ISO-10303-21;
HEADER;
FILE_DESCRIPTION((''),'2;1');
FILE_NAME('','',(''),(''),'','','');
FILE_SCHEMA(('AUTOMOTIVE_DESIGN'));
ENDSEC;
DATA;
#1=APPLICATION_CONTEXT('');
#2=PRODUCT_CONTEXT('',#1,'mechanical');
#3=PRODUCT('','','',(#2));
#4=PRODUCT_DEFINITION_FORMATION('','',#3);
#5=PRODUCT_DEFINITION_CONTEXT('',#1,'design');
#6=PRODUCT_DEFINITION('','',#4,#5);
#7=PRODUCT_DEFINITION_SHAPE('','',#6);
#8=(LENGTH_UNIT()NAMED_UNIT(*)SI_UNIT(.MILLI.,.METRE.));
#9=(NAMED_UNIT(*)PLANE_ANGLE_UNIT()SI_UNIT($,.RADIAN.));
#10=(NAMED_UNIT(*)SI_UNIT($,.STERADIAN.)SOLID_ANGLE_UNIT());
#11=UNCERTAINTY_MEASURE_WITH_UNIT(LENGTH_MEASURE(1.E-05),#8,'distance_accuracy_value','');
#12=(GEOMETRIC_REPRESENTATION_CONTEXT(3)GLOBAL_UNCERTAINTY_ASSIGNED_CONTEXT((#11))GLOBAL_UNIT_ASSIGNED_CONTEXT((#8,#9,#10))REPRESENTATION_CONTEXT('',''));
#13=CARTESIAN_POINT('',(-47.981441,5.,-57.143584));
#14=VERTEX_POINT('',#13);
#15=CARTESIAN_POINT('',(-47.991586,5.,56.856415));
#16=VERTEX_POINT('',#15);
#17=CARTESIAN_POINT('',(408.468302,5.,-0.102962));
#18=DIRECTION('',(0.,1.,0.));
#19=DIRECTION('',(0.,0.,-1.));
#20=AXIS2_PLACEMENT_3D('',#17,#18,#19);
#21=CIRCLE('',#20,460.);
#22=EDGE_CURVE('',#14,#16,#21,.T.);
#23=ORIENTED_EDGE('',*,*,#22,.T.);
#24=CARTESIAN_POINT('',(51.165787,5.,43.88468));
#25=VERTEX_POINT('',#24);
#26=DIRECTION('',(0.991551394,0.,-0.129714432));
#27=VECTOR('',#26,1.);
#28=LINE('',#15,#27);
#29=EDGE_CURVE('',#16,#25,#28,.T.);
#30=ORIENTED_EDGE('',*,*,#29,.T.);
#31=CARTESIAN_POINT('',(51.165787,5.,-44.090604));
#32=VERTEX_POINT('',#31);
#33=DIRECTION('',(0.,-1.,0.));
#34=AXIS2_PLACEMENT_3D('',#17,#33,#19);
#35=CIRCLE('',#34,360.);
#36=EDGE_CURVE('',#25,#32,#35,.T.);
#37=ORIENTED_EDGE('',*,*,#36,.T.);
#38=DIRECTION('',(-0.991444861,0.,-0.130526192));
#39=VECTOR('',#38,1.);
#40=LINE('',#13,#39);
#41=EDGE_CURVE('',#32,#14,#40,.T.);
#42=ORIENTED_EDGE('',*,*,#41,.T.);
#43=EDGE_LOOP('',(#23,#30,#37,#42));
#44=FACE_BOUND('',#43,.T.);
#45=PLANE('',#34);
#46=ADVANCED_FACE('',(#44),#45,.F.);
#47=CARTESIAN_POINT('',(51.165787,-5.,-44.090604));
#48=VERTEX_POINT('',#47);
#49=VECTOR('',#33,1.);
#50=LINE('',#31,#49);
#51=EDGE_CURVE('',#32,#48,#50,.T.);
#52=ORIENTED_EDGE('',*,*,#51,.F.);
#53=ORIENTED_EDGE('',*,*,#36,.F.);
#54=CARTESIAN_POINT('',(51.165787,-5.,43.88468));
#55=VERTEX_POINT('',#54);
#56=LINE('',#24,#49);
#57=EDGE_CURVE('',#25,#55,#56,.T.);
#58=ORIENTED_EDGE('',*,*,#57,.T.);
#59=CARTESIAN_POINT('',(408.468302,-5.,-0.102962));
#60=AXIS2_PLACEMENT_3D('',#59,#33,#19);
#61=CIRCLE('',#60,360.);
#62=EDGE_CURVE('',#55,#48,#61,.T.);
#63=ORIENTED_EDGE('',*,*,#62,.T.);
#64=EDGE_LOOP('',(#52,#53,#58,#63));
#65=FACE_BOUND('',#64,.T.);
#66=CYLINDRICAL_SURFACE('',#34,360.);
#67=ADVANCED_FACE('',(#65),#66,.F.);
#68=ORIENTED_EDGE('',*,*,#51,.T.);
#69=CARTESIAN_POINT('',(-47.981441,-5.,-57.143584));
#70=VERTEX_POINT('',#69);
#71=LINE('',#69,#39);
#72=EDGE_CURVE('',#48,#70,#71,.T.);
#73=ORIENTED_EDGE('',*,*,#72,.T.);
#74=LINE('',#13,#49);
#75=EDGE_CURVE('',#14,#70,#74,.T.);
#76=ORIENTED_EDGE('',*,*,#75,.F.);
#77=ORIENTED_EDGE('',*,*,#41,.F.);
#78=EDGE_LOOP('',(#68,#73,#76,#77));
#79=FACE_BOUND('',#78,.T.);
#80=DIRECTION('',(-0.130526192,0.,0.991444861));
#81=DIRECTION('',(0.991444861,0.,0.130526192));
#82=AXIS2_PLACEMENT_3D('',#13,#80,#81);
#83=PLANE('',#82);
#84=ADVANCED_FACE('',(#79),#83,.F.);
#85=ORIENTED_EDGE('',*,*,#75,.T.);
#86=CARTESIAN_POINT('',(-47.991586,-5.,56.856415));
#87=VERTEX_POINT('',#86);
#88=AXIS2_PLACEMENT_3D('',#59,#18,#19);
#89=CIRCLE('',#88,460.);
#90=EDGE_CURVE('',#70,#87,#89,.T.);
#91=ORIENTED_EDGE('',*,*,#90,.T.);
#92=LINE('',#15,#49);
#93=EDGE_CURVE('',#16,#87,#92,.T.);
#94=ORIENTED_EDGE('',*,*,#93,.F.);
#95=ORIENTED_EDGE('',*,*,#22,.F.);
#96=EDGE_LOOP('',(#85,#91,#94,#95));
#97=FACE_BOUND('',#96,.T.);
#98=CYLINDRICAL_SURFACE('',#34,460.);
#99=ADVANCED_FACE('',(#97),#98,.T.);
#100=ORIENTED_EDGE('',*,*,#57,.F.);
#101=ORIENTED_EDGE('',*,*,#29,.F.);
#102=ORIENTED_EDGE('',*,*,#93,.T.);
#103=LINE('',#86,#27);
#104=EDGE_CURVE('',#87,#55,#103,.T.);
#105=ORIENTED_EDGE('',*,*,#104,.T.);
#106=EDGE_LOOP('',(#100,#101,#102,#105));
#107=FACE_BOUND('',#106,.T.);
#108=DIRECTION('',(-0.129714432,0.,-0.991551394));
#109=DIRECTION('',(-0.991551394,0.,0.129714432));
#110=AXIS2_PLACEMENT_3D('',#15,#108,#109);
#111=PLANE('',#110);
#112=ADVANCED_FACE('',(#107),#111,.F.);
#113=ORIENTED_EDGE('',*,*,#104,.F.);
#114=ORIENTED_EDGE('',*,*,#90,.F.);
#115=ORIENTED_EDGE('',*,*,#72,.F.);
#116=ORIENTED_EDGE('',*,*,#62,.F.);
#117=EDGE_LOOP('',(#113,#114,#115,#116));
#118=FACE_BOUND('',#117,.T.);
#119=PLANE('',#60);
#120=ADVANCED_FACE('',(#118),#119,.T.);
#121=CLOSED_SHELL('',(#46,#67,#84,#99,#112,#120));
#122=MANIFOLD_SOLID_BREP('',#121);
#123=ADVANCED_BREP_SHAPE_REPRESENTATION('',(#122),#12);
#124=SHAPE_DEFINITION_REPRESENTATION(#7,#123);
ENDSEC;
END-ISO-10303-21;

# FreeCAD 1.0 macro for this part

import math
import FreeCAD as App
import Part
import Sketcher
from FreeCAD import Vector
Q = App.Units.Quantity

doc = App.newDocument("Part")
body = doc.addObject("PartDesign::Body", "Body")

sketch1 = doc.addObject("Sketcher::SketchObject", "Sketch")
body.addObject(sketch1)
sketch1.AttachmentSupport = (doc.XZ_Plane, [""])
sketch1.MapMode = "FlatFace"
sketch1.addGeometry([
    Part.LineSegment(Vector(51, -44, 0), Vector(-48, -57, 0)),
    Part.ArcOfCircle(Part.Circle(Vector(408, 0, 0), Vector(0, 0, 1), 460), math.radians(172.89), math.radians(187.12)),
    Part.LineSegment(Vector(-48, 57, 0), Vector(51, 44, 0)),
    Part.ArcOfCircle(Part.Circle(Vector(408, 0, 0), Vector(0, 0, 1), 360), math.radians(172.98), math.radians(187.02)),
], False)
sketch1.addConstraint([
    Sketcher.Constraint("Coincident", 0, 2, 1, 2),
    Sketcher.Constraint("Coincident", 1, 1, 2, 1),
    Sketcher.Constraint("Coincident", 2, 2, 3, 1),
    Sketcher.Constraint("Coincident", 3, 2, 0, 1),
    Sketcher.Constraint("Coincident", 3, 3, 1, 3),
    Sketcher.Constraint("Vertical", 2, 2, 3, 2),
    Sketcher.Constraint("Radius", 1, 460.0),
    Sketcher.Constraint("Radius", 3, 360.0),
    Sketcher.Constraint("Angle", 0, Q("-172.5 deg")),
    Sketcher.Constraint("DistanceY", 0, 2, 1, 1, 114.0),
    Sketcher.Constraint("DistanceX", -1, 1, 1, 3, 408.468302),
    Sketcher.Constraint("DistanceX", 0, 2, -1, 1, 47.981441),
    Sketcher.Constraint("DistanceY", -1, 1, 2, 2, 43.88468),
])
pad1 = doc.addObject("PartDesign::Pad", "Pad")
body.addObject(pad1)
pad1.Profile = sketch1
pad1.Length = 10
pad1.Midplane = True

doc.recompute()
